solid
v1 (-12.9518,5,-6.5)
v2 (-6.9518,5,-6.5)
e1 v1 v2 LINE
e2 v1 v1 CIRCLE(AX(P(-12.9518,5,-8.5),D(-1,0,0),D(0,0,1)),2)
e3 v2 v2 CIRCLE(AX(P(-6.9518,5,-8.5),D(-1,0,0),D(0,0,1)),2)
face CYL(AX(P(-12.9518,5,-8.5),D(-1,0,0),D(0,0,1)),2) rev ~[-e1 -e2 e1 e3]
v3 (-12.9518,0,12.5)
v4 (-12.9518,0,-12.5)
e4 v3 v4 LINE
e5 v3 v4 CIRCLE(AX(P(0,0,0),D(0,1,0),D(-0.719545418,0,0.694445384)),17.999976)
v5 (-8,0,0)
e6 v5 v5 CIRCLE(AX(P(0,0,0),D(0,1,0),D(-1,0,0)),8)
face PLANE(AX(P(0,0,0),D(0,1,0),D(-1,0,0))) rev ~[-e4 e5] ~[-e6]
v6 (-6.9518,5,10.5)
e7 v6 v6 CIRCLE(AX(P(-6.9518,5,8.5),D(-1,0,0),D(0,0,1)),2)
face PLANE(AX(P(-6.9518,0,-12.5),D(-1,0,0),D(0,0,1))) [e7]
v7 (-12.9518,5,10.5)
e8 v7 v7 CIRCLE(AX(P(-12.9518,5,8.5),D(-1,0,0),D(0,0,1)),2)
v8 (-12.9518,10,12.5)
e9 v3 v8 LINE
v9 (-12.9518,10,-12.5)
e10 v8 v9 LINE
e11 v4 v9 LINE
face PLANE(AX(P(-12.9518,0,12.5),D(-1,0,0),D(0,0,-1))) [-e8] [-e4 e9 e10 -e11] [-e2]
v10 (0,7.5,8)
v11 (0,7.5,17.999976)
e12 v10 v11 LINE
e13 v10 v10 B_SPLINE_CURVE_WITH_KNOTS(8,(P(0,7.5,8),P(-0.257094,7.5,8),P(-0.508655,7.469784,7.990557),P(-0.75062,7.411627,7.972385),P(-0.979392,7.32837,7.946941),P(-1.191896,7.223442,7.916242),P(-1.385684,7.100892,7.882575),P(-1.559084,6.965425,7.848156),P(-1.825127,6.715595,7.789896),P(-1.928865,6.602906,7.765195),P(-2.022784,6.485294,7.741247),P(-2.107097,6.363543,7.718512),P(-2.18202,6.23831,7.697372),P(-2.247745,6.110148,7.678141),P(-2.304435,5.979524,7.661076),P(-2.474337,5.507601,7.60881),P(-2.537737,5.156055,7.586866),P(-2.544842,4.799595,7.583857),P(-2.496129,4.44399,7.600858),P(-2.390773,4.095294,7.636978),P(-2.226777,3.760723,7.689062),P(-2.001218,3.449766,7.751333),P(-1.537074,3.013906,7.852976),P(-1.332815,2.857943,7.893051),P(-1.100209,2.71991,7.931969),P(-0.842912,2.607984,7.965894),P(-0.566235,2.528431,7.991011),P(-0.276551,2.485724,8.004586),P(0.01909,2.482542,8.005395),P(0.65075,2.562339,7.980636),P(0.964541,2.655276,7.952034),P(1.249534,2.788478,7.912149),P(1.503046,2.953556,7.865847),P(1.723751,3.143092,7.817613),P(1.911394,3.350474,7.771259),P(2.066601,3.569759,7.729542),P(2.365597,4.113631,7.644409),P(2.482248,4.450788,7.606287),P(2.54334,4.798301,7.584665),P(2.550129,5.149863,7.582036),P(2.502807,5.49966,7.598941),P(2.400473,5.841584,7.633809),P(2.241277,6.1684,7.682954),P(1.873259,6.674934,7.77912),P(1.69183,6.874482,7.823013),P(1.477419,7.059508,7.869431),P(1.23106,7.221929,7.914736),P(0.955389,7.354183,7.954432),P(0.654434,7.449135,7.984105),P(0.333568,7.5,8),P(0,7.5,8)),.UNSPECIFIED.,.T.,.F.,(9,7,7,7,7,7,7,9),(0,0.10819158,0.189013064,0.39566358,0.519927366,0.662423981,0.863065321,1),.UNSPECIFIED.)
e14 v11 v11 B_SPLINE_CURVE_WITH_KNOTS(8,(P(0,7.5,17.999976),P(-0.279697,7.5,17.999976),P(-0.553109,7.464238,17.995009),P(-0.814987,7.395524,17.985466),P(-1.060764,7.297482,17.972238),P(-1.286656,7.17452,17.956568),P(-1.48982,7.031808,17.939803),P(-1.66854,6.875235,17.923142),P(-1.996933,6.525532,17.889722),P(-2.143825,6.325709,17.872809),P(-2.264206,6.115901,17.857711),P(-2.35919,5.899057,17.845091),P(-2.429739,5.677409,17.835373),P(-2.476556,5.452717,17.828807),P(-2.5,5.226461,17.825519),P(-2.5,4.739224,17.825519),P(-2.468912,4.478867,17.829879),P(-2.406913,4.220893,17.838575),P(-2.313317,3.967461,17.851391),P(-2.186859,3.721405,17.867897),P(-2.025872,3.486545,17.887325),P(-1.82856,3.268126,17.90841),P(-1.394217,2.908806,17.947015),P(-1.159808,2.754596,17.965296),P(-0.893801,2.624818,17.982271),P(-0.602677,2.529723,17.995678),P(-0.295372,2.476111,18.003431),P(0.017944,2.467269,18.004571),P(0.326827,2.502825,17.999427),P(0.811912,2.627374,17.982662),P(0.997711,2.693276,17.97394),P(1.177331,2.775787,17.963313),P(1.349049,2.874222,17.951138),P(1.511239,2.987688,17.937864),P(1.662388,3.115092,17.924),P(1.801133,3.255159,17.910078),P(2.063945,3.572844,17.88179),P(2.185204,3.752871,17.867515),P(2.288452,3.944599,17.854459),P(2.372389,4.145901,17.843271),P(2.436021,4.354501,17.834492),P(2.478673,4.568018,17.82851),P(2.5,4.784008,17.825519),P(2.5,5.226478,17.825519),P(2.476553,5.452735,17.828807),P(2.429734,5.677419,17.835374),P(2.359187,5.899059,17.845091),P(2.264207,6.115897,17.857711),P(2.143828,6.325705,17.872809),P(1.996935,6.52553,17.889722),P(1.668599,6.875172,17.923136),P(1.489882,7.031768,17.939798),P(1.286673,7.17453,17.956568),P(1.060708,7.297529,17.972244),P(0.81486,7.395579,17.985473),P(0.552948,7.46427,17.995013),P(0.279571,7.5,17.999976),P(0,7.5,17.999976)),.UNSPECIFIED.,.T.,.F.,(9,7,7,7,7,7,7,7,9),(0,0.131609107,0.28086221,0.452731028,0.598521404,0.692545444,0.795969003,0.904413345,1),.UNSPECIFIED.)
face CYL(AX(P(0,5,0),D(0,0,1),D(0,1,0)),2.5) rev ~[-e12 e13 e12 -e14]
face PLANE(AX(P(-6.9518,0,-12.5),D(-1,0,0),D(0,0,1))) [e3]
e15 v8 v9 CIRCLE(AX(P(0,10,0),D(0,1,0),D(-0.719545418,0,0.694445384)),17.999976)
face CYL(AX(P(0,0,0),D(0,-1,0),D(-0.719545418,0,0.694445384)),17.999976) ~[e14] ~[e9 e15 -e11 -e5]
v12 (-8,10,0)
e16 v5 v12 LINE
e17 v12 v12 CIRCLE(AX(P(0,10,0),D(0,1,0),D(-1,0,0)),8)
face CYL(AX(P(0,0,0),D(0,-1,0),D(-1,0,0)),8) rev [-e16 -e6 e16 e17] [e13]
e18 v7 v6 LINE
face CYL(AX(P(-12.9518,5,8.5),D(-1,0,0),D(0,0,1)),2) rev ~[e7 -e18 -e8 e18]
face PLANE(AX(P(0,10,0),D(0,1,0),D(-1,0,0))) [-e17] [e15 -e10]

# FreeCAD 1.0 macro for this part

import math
import FreeCAD as App
import Part
import Sketcher

V = App.Vector

doc = App.newDocument("Part")
body = doc.addObject("PartDesign::Body", "Body")

sketch1 = body.newObject("Sketcher::SketchObject", "Sketch")
sketch1.AttachmentSupport = (doc.getObject("XZ_Plane"), [""])
sketch1.MapMode = "FlatFace"
sketch1.addGeometry([
    Part.LineSegment(V(-12.9518, -12.5, 0), V(-12.9518, 12.5, 0)),
    Part.ArcOfCircle(Part.Circle(V(0, 0, 0), V(0, 0, 1), 17.999976), math.radians(-136.016962), math.radians(136.016962)),
    Part.Circle(V(0, 0, 0), V(0, 0, 1), 8),
], False)
sketch1.addConstraint([
    Sketcher.Constraint("Coincident", 0, 1, 1, 1),
    Sketcher.Constraint("Coincident", 1, 2, 0, 2),
    Sketcher.Constraint("Vertical", 0),
    Sketcher.Constraint("Coincident", 1, 3, -1, 1),
    Sketcher.Constraint("Coincident", 2, 3, -1, 1),
    Sketcher.Constraint("Diameter", 2, 16.0),
    Sketcher.Constraint("Radius", 1, 18.0),
    Sketcher.Constraint("DistanceY", 0, 1, 0, 2, 25.0),
])
pad1 = body.newObject("PartDesign::Pad", "Pad")
pad1.Profile = sketch1
pad1.Length = 10
pad1.Reversed = True

sketch2 = body.newObject("Sketcher::SketchObject", "Sketch001")
sketch2.AttachmentSupport = (doc.getObject("YZ_Plane"), [""])
sketch2.MapMode = "FlatFace"
sketch2.AttachmentOffset = App.Placement(V(0, 0, -12.9518), App.Rotation())
sketch2.addGeometry([
    Part.Circle(V(5, 8.5, 0), V(0, 0, 1), 2),
    Part.Circle(V(5, -8.5, 0), V(0, 0, 1), 2),
], False)
sketch2.addConstraint([
    Sketcher.Constraint("Equal", 0, 1),
    Sketcher.Constraint("Symmetric", 0, 3, 1, 3, -1),
    Sketcher.Constraint("Diameter", 0, 4.0),
    Sketcher.Constraint("DistanceX", -1, 1, 0, 3, 5.0),
    Sketcher.Constraint("DistanceY", 1, 3, 0, 3, 17.0),
])
pocket1 = body.newObject("PartDesign::Pocket", "Pocket")
pocket1.Profile = sketch2
pocket1.Length = 6
pocket1.Reversed = True

sketch3 = body.newObject("Sketcher::SketchObject", "Sketch002")
sketch3.AttachmentSupport = (doc.getObject("XY_Plane"), [""])
sketch3.MapMode = "FlatFace"
sketch3.addGeometry(Part.Circle(V(0, 5, 0), V(0, 0, 1), 2.5), False)
sketch3.addConstraint([
    Sketcher.Constraint("PointOnObject", 0, 3, -2),
    Sketcher.Constraint("Diameter", 0, 5.0),
    Sketcher.Constraint("DistanceY", -1, 1, 0, 3, 5.0),
])
doc.recompute()
hole = body.newObject("PartDesign::Hole", "Hole")
hole.Profile = sketch3
hole.ThreadType = "None"
hole.Diameter = 5
hole.DepthType = "ThroughAll"
hole.Reversed = True

doc.recompute()
